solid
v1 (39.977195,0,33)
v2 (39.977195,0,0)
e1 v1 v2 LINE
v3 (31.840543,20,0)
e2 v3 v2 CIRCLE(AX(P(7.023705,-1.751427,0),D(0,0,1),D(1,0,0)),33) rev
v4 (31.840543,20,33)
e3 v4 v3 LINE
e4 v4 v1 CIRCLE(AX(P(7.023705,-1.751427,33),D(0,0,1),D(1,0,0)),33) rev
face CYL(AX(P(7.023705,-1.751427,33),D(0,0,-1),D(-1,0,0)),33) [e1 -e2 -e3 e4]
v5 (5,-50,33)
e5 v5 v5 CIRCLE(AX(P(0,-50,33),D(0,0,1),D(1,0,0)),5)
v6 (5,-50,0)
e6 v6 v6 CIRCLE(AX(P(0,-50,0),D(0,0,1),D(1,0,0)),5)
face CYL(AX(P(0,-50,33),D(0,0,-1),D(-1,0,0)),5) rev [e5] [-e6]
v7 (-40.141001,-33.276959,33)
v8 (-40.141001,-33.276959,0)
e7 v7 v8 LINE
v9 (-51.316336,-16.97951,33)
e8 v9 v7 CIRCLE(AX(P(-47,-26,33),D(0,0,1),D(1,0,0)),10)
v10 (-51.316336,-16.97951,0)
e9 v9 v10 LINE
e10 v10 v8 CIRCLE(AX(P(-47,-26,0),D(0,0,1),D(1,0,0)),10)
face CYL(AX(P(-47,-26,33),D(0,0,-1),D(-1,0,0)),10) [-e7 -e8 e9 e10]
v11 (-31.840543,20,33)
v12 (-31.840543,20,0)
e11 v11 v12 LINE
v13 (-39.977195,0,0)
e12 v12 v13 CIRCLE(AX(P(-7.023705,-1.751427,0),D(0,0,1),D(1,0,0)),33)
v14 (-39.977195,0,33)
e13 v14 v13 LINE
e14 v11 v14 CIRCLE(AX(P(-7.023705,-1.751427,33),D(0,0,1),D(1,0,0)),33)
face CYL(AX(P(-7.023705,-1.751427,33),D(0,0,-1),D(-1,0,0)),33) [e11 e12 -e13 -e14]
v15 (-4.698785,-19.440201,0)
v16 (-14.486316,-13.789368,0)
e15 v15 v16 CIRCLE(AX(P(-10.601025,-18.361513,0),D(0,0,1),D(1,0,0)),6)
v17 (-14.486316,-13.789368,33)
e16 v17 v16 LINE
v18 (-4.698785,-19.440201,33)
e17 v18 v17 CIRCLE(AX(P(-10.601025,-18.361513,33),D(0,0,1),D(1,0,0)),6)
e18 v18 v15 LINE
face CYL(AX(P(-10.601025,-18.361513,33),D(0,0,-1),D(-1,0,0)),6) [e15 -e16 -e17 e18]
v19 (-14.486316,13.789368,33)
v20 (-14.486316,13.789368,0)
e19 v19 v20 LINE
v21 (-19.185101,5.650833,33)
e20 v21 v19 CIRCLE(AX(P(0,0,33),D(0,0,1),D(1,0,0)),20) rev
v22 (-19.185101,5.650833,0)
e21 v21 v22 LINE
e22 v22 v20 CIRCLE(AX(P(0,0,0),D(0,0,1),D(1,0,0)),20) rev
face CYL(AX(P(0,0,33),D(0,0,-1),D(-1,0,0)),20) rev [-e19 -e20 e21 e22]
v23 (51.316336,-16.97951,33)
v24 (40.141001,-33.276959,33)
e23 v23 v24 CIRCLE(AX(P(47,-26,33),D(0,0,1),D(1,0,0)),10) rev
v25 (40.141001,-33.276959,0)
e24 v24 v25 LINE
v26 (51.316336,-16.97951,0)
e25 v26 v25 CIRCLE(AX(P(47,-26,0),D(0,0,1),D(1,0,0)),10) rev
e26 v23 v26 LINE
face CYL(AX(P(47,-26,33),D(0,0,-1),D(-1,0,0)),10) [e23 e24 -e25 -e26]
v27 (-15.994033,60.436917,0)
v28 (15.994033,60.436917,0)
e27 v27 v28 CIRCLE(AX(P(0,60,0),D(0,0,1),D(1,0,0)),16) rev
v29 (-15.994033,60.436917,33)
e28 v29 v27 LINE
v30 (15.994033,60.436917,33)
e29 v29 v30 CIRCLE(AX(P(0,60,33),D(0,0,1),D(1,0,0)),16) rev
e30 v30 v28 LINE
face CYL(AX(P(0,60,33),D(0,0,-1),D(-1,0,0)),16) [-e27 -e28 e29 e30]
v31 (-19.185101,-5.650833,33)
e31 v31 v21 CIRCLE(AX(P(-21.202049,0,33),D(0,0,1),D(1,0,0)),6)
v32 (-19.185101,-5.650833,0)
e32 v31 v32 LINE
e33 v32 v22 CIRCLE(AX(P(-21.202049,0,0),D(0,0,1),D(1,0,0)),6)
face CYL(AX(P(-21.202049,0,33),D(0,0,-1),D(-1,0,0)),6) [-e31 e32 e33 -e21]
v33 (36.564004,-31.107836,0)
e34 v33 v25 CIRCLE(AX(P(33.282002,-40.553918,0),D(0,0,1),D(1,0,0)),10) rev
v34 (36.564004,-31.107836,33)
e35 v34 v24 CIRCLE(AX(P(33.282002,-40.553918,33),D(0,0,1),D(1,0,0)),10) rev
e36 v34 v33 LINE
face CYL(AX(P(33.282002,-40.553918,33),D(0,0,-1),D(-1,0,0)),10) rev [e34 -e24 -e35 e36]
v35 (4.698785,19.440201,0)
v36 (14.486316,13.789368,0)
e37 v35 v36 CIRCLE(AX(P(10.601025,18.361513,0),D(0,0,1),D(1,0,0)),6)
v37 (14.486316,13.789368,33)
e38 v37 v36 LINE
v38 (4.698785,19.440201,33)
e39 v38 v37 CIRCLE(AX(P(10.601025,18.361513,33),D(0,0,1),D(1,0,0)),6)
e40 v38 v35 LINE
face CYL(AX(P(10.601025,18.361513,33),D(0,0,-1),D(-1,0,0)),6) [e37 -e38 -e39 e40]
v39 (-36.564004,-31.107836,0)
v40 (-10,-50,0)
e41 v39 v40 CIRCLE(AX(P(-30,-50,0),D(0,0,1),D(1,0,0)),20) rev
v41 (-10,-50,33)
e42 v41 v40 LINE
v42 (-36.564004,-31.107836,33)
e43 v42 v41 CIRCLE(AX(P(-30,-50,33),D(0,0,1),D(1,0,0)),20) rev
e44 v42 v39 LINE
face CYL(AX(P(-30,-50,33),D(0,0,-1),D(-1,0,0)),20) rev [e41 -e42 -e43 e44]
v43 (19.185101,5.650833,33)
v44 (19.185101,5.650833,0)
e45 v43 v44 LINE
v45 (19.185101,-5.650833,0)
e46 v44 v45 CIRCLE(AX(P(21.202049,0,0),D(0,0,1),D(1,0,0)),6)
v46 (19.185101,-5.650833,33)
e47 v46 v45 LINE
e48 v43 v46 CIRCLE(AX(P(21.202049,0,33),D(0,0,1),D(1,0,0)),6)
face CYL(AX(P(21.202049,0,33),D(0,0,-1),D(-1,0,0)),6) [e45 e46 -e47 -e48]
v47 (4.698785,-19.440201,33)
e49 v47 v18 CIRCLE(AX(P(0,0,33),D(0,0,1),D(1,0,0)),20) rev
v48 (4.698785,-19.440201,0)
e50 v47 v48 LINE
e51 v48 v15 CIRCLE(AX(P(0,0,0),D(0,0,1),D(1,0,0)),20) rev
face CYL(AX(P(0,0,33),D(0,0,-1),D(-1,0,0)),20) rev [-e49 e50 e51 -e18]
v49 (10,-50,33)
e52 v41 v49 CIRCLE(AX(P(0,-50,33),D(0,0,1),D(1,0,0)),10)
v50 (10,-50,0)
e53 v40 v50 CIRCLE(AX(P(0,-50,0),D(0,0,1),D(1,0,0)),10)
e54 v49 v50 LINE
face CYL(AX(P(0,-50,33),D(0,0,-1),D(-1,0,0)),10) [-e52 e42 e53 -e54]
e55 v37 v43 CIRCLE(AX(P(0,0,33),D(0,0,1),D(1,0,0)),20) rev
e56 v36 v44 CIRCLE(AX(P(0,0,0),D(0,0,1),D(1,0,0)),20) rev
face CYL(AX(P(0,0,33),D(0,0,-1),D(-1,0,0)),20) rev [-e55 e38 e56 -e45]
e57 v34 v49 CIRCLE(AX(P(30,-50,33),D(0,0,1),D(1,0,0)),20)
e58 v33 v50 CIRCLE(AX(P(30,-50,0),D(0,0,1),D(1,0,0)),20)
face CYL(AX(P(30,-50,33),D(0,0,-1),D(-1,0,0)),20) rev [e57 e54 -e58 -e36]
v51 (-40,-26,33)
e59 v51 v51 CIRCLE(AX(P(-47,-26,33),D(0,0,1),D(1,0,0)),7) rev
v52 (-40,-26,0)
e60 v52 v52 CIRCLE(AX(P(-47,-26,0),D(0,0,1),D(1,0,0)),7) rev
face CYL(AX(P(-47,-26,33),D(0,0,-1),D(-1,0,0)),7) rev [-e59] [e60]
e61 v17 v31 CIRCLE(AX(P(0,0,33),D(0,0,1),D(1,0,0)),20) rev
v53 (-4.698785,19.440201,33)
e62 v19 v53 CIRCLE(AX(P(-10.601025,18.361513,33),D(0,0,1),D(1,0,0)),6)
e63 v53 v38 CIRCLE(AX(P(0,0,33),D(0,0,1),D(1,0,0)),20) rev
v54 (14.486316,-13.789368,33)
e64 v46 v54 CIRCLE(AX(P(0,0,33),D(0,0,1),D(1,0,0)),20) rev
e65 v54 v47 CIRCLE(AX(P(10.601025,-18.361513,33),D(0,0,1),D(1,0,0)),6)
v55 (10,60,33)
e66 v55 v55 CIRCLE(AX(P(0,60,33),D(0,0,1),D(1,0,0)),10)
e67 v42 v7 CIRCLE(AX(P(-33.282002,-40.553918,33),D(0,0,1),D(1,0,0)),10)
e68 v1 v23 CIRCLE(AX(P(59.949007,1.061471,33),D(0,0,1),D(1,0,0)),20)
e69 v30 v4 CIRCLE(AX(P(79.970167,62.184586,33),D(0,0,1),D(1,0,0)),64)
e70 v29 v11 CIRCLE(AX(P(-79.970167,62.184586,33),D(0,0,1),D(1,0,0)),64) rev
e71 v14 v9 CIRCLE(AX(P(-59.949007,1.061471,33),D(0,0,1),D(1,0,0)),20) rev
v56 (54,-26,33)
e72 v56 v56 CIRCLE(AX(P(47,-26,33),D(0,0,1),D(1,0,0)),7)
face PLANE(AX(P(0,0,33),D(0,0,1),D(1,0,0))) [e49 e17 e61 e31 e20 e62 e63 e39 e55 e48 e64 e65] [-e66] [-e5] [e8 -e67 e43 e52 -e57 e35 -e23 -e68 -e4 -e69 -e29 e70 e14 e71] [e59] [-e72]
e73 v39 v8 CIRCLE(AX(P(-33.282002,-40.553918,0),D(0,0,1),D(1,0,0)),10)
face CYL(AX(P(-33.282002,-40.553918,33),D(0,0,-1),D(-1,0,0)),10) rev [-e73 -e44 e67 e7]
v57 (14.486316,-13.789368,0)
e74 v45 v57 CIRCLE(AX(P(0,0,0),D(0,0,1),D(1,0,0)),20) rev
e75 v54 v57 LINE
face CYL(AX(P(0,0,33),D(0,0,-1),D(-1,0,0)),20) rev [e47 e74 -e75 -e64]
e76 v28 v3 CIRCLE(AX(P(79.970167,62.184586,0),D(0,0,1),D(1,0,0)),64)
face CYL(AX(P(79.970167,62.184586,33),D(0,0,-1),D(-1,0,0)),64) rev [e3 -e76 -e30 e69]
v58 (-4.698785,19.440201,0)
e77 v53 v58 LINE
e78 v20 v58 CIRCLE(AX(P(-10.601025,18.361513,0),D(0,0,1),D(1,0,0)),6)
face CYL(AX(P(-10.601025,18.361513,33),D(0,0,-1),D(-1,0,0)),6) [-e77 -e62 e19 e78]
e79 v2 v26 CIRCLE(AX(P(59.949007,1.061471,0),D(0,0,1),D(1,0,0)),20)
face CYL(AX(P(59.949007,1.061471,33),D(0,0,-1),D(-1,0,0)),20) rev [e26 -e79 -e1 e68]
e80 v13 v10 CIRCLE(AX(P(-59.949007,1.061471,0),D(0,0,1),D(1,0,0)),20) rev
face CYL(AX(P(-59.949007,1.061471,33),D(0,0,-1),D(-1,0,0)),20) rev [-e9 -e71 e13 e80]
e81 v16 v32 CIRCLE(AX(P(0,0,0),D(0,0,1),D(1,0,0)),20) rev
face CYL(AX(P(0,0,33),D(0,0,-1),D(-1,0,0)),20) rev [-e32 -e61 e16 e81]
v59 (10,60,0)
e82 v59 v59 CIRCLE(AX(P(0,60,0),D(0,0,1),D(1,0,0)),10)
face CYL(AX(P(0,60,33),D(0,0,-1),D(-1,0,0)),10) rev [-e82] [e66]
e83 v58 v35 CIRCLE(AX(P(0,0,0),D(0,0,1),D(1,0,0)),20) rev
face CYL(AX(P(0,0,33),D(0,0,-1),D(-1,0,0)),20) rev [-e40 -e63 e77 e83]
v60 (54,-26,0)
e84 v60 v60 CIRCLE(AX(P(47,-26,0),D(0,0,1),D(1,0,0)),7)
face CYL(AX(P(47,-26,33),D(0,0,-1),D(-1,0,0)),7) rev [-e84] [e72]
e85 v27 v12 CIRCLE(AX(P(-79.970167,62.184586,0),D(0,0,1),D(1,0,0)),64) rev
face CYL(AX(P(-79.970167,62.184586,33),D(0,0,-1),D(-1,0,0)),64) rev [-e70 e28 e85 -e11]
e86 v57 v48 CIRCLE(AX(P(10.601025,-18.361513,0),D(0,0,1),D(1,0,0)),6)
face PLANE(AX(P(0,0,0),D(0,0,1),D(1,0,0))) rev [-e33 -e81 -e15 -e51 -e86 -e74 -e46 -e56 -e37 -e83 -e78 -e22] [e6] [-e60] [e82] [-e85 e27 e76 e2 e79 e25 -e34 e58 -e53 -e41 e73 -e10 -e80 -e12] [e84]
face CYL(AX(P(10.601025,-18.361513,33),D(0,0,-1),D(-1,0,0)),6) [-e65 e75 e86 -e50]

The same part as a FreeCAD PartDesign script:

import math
import FreeCAD as App
import Part
import Sketcher

V = App.Vector
Q = App.Units.Quantity

doc = App.newDocument("Part")
body = doc.addObject("PartDesign::Body", "Body")

# Sketch on XY plane
sketch1 = body.newObject("Sketcher::SketchObject", "Sketch")
sketch1.AttachmentSupport = (doc.getObject("XY_Plane"), [""])
sketch1.MapMode = "FlatFace"
sketch1.addGeometry(Part.ArcOfCircle(Part.Circle(V(0, 60, 0), V(0, 0, 1), 16), math.radians(1.564789), math.radians(178.435211)), False)
sketch1.addGeometry(Part.ArcOfCircle(Part.Circle(V(-79.970167, 62.184586, 0), V(0, 0, 1), 64), math.radians(-41.233872), math.radians(-1.564789)), False)
sketch1.addGeometry(Part.ArcOfCircle(Part.Circle(V(-7.023705, -1.751427, 0), V(0, 0, 1), 33), math.radians(138.766128), math.radians(176.95768)), False)
sketch1.addGeometry(Part.ArcOfCircle(Part.Circle(V(-59.949007, 1.061471, 0), V(0, 0, 1), 20), math.radians(-64.428724), math.radians(-3.04232)), False)
sketch1.addGeometry(Part.ArcOfCircle(Part.Circle(V(-47, -26, 0), V(0, 0, 1), 10), math.radians(115.571276), math.radians(313.30642)), False)
sketch1.addGeometry(Part.ArcOfCircle(Part.Circle(V(-33.282002, -40.553918, 0), V(0, 0, 1), 10), math.radians(109.159572), math.radians(133.30642)), False)
sketch1.addGeometry(Part.ArcOfCircle(Part.Circle(V(-30, -50, 0), V(0, 0, 1), 20), math.radians(0), math.radians(109.159572)), False)
sketch1.addGeometry(Part.ArcOfCircle(Part.Circle(V(0, -50, 0), V(0, 0, 1), 10), math.radians(180), math.radians(360)), False)
sketch1.addGeometry(Part.ArcOfCircle(Part.Circle(V(30, -50, 0), V(0, 0, 1), 20), math.radians(70.840428), math.radians(180)), False)
sketch1.addGeometry(Part.ArcOfCircle(Part.Circle(V(33.282002, -40.553918, 0), V(0, 0, 1), 10), math.radians(46.69358), math.radians(70.840428)), False)
sketch1.addGeometry(Part.ArcOfCircle(Part.Circle(V(47, -26, 0), V(0, 0, 1), 10), math.radians(-133.30642), math.radians(64.428724)), False)
sketch1.addGeometry(Part.ArcOfCircle(Part.Circle(V(59.949007, 1.061471, 0), V(0, 0, 1), 20), math.radians(-176.95768), math.radians(-115.571276)), False)
sketch1.addGeometry(Part.ArcOfCircle(Part.Circle(V(7.023705, -1.751427, 0), V(0, 0, 1), 33), math.radians(3.04232), math.radians(41.233872)), False)
sketch1.addGeometry(Part.ArcOfCircle(Part.Circle(V(79.970167, 62.184586, 0), V(0, 0, 1), 64), math.radians(-178.435211), math.radians(-138.766128)), False)
sketch1.addGeometry(Part.Circle(V(-47, -26, 0), V(0, 0, 1), 7), False)
sketch1.addGeometry(Part.Circle(V(0, -50, 0), V(0, 0, 1), 5), False)
sketch1.addGeometry(Part.Circle(V(47, -26, 0), V(0, 0, 1), 7), False)
sketch1.addGeometry(Part.ArcOfCircle(Part.Circle(V(0, 0, 0), V(0, 0, 1), 20), math.radians(136.411958), math.radians(163.588042)), False)
sketch1.addGeometry(Part.ArcOfCircle(Part.Circle(V(-10.601025, 18.361513, 0), V(0, 0, 1), 6), math.radians(-130.357023), math.radians(10.357023)), False)
sketch1.addGeometry(Part.ArcOfCircle(Part.Circle(V(0, 0, 0), V(0, 0, 1), 20), math.radians(76.411958), math.radians(103.588042)), False)
sketch1.addGeometry(Part.ArcOfCircle(Part.Circle(V(10.601025, 18.361513, 0), V(0, 0, 1), 6), math.radians(169.642977), math.radians(310.357023)), False)
sketch1.addGeometry(Part.ArcOfCircle(Part.Circle(V(0, 0, 0), V(0, 0, 1), 20), math.radians(16.411958), math.radians(43.588042)), False)
sketch1.addGeometry(Part.ArcOfCircle(Part.Circle(V(21.202049, 0, 0), V(0, 0, 1), 6), math.radians(109.642977), math.radians(250.357023)), False)
sketch1.addGeometry(Part.ArcOfCircle(Part.Circle(V(0, 0, 0), V(0, 0, 1), 20), math.radians(-43.588042), math.radians(-16.411958)), False)
sketch1.addGeometry(Part.ArcOfCircle(Part.Circle(V(10.601025, -18.361513, 0), V(0, 0, 1), 6), math.radians(49.642977), math.radians(190.357023)), False)
sketch1.addGeometry(Part.ArcOfCircle(Part.Circle(V(0, 0, 0), V(0, 0, 1), 20), math.radians(-103.588042), math.radians(-76.411958)), False)
sketch1.addGeometry(Part.ArcOfCircle(Part.Circle(V(-10.601025, -18.361513, 0), V(0, 0, 1), 6), math.radians(-10.357023), math.radians(130.357023)), False)
sketch1.addGeometry(Part.ArcOfCircle(Part.Circle(V(0, 0, 0), V(0, 0, 1), 20), math.radians(-163.588042), math.radians(-136.411958)), False)
sketch1.addGeometry(Part.ArcOfCircle(Part.Circle(V(-21.202049, 0, 0), V(0, 0, 1), 6), math.radians(-70.357023), math.radians(70.357023)), False)
sketch1.addGeometry(Part.Circle(V(0, 60, 0), V(0, 0, 1), 10), False)
sketch1.addConstraint(Sketcher.Constraint("Tangent", 0, 2, 1, 2))
sketch1.addConstraint(Sketcher.Constraint("Tangent", 1, 1, 2, 1))
sketch1.addConstraint(Sketcher.Constraint("Tangent", 2, 2, 3, 2))
sketch1.addConstraint(Sketcher.Constraint("Tangent", 3, 1, 4, 1))
sketch1.addConstraint(Sketcher.Constraint("Tangent", 4, 2, 5, 2))
sketch1.addConstraint(Sketcher.Constraint("Tangent", 5, 1, 6, 2))
sketch1.addConstraint(Sketcher.Constraint("Tangent", 6, 1, 7, 1))
sketch1.addConstraint(Sketcher.Constraint("Tangent", 7, 2, 8, 2))
sketch1.addConstraint(Sketcher.Constraint("Tangent", 8, 1, 9, 2))
sketch1.addConstraint(Sketcher.Constraint("Tangent", 9, 1, 10, 1))
sketch1.addConstraint(Sketcher.Constraint("Tangent", 10, 2, 11, 2))
sketch1.addConstraint(Sketcher.Constraint("Tangent", 11, 1, 12, 1))
sketch1.addConstraint(Sketcher.Constraint("Tangent", 12, 2, 13, 2))
sketch1.addConstraint(Sketcher.Constraint("Tangent", 13, 1, 0, 1))
sketch1.addConstraint(Sketcher.Constraint("Coincident", 17, 1, 18, 1))
sketch1.addConstraint(Sketcher.Constraint("Coincident", 18, 2, 19, 2))
sketch1.addConstraint(Sketcher.Constraint("Coincident", 19, 1, 20, 1))
sketch1.addConstraint(Sketcher.Constraint("Coincident", 20, 2, 21, 2))
sketch1.addConstraint(Sketcher.Constraint("Coincident", 21, 1, 22, 1))
sketch1.addConstraint(Sketcher.Constraint("Coincident", 22, 2, 23, 2))
sketch1.addConstraint(Sketcher.Constraint("Coincident", 23, 1, 24, 1))
sketch1.addConstraint(Sketcher.Constraint("Coincident", 24, 2, 25, 2))
sketch1.addConstraint(Sketcher.Constraint("Coincident", 25, 1, 26, 1))
sketch1.addConstraint(Sketcher.Constraint("Coincident", 26, 2, 27, 2))
sketch1.addConstraint(Sketcher.Constraint("Coincident", 27, 1, 28, 1))
sketch1.addConstraint(Sketcher.Constraint("Coincident", 28, 2, 17, 2))
sketch1.addConstraint(Sketcher.Constraint("Coincident", 17, 3, -1, 1))
sketch1.addConstraint(Sketcher.Constraint("Coincident", 19, 3, -1, 1))
sketch1.addConstraint(Sketcher.Constraint("Coincident", 21, 3, -1, 1))
sketch1.addConstraint(Sketcher.Constraint("Coincident", 23, 3, -1, 1))
sketch1.addConstraint(Sketcher.Constraint("Coincident", 25, 3, -1, 1))
sketch1.addConstraint(Sketcher.Constraint("Coincident", 27, 3, -1, 1))
sketch1.addConstraint(Sketcher.Constraint("Coincident", 14, 3, 4, 3))
sketch1.addConstraint(Sketcher.Constraint("Coincident", 15, 3, 7, 3))
sketch1.addConstraint(Sketcher.Constraint("Coincident", 16, 3, 10, 3))
sketch1.addConstraint(Sketcher.Constraint("Coincident", 29, 3, 0, 3))
sketch1.addConstraint(Sketcher.Constraint("Equal", 4, 5))
sketch1.addConstraint(Sketcher.Constraint("Equal", 3, 6))
sketch1.addConstraint(Sketcher.Constraint("Equal", 5, 7))
sketch1.addConstraint(Sketcher.Constraint("Equal", 6, 8))
sketch1.addConstraint(Sketcher.Constraint("Equal", 7, 9))
sketch1.addConstraint(Sketcher.Constraint("Equal", 9, 10))
sketch1.addConstraint(Sketcher.Constraint("Equal", 8, 11))
sketch1.addConstraint(Sketcher.Constraint("Equal", 2, 12))
sketch1.addConstraint(Sketcher.Constraint("Equal", 1, 13))
sketch1.addConstraint(Sketcher.Constraint("Equal", 14, 16))
sketch1.addConstraint(Sketcher.Constraint("Equal", 11, 17))
sketch1.addConstraint(Sketcher.Constraint("Equal", 17, 19))
sketch1.addConstraint(Sketcher.Constraint("Equal", 18, 20))
sketch1.addConstraint(Sketcher.Constraint("Equal", 19, 21))
sketch1.addConstraint(Sketcher.Constraint("Equal", 20, 22))
sketch1.addConstraint(Sketcher.Constraint("Equal", 21, 23))
sketch1.addConstraint(Sketcher.Constraint("Equal", 22, 24))
sketch1.addConstraint(Sketcher.Constraint("Equal", 23, 25))
sketch1.addConstraint(Sketcher.Constraint("Equal", 24, 26))
sketch1.addConstraint(Sketcher.Constraint("Equal", 25, 27))
sketch1.addConstraint(Sketcher.Constraint("Equal", 26, 28))
sketch1.addConstraint(Sketcher.Constraint("Equal", 10, 29))
sketch1.addConstraint(Sketcher.Constraint("Symmetric", 18, 3, 24, 3, -1, 1))
sketch1.addConstraint(Sketcher.Constraint("Symmetric", 20, 3, 26, 3, -1, 1))
sketch1.addConstraint(Sketcher.Constraint("Symmetric", 22, 3, 28, 3, -1, 1))
sketch1.addConstraint(Sketcher.Constraint("Symmetric", 2, 2, 11, 1, -1, 1))
sketch1.addConstraint(Sketcher.Constraint("Symmetric", 6, 3, 8, 3, -2))
sketch1.addConstraint(Sketcher.Constraint("Symmetric", 4, 3, 10, 3, -2))
sketch1.addConstraint(Sketcher.Constraint("Symmetric", 1, 3, 13, 3, -2))
sketch1.addConstraint(Sketcher.Constraint("Symmetric", 18, 3, 20, 3, -2))
sketch1.addConstraint(Sketcher.Constraint("PointOnObject", 22, 3, -1))
sketch1.addConstraint(Sketcher.Constraint("Horizontal", 6, 3, 7, 3))
sketch1.addConstraint(Sketcher.Constraint("Diameter", 14, Q("14 mm")))
sketch1.addConstraint(Sketcher.Constraint("Diameter", 15, Q("10 mm")))
sketch1.addConstraint(Sketcher.Constraint("Diameter", 29, Q("20 mm")))
sketch1.addConstraint(Sketcher.Constraint("Radius", 0, Q("16 mm")))
sketch1.addConstraint(Sketcher.Constraint("Radius", 1, Q("64 mm")))
sketch1.addConstraint(Sketcher.Constraint("Radius", 2, Q("33 mm")))
sketch1.addConstraint(Sketcher.Constraint("Radius", 3, Q("20 mm")))
sketch1.addConstraint(Sketcher.Constraint("Radius", 18, Q("6 mm")))
sketch1.addConstraint(Sketcher.Constraint("DistanceY", -1, 1, 0, 3, Q("60 mm")))
sketch1.addConstraint(Sketcher.Constraint("DistanceX", 4, 3, -1, 1, Q("47 mm")))
sketch1.addConstraint(Sketcher.Constraint("DistanceY", 4, 3, -1, 1, Q("26 mm")))
sketch1.addConstraint(Sketcher.Constraint("DistanceY", 6, 3, -1, 1, Q("50 mm")))
sketch1.addConstraint(Sketcher.Constraint("DistanceY", -1, 1, 1, 1, Q("20 mm")))
sketch1.addConstraint(Sketcher.Constraint("DistanceY", -1, 1, 18, 2, Q("19.440201 mm")))
sketch1.addConstraint(Sketcher.Constraint("DistanceX", -1, 1, 21, 1, Q("19.185101 mm")))
sketch1.addConstraint(Sketcher.Constraint("DistanceX", 18, 3, 2, 3, Q("3.577319 mm")))
pad1 = body.newObject("PartDesign::Pad", "Pad")
pad1.Profile = sketch1
pad1.Length = 33

doc.recompute()
